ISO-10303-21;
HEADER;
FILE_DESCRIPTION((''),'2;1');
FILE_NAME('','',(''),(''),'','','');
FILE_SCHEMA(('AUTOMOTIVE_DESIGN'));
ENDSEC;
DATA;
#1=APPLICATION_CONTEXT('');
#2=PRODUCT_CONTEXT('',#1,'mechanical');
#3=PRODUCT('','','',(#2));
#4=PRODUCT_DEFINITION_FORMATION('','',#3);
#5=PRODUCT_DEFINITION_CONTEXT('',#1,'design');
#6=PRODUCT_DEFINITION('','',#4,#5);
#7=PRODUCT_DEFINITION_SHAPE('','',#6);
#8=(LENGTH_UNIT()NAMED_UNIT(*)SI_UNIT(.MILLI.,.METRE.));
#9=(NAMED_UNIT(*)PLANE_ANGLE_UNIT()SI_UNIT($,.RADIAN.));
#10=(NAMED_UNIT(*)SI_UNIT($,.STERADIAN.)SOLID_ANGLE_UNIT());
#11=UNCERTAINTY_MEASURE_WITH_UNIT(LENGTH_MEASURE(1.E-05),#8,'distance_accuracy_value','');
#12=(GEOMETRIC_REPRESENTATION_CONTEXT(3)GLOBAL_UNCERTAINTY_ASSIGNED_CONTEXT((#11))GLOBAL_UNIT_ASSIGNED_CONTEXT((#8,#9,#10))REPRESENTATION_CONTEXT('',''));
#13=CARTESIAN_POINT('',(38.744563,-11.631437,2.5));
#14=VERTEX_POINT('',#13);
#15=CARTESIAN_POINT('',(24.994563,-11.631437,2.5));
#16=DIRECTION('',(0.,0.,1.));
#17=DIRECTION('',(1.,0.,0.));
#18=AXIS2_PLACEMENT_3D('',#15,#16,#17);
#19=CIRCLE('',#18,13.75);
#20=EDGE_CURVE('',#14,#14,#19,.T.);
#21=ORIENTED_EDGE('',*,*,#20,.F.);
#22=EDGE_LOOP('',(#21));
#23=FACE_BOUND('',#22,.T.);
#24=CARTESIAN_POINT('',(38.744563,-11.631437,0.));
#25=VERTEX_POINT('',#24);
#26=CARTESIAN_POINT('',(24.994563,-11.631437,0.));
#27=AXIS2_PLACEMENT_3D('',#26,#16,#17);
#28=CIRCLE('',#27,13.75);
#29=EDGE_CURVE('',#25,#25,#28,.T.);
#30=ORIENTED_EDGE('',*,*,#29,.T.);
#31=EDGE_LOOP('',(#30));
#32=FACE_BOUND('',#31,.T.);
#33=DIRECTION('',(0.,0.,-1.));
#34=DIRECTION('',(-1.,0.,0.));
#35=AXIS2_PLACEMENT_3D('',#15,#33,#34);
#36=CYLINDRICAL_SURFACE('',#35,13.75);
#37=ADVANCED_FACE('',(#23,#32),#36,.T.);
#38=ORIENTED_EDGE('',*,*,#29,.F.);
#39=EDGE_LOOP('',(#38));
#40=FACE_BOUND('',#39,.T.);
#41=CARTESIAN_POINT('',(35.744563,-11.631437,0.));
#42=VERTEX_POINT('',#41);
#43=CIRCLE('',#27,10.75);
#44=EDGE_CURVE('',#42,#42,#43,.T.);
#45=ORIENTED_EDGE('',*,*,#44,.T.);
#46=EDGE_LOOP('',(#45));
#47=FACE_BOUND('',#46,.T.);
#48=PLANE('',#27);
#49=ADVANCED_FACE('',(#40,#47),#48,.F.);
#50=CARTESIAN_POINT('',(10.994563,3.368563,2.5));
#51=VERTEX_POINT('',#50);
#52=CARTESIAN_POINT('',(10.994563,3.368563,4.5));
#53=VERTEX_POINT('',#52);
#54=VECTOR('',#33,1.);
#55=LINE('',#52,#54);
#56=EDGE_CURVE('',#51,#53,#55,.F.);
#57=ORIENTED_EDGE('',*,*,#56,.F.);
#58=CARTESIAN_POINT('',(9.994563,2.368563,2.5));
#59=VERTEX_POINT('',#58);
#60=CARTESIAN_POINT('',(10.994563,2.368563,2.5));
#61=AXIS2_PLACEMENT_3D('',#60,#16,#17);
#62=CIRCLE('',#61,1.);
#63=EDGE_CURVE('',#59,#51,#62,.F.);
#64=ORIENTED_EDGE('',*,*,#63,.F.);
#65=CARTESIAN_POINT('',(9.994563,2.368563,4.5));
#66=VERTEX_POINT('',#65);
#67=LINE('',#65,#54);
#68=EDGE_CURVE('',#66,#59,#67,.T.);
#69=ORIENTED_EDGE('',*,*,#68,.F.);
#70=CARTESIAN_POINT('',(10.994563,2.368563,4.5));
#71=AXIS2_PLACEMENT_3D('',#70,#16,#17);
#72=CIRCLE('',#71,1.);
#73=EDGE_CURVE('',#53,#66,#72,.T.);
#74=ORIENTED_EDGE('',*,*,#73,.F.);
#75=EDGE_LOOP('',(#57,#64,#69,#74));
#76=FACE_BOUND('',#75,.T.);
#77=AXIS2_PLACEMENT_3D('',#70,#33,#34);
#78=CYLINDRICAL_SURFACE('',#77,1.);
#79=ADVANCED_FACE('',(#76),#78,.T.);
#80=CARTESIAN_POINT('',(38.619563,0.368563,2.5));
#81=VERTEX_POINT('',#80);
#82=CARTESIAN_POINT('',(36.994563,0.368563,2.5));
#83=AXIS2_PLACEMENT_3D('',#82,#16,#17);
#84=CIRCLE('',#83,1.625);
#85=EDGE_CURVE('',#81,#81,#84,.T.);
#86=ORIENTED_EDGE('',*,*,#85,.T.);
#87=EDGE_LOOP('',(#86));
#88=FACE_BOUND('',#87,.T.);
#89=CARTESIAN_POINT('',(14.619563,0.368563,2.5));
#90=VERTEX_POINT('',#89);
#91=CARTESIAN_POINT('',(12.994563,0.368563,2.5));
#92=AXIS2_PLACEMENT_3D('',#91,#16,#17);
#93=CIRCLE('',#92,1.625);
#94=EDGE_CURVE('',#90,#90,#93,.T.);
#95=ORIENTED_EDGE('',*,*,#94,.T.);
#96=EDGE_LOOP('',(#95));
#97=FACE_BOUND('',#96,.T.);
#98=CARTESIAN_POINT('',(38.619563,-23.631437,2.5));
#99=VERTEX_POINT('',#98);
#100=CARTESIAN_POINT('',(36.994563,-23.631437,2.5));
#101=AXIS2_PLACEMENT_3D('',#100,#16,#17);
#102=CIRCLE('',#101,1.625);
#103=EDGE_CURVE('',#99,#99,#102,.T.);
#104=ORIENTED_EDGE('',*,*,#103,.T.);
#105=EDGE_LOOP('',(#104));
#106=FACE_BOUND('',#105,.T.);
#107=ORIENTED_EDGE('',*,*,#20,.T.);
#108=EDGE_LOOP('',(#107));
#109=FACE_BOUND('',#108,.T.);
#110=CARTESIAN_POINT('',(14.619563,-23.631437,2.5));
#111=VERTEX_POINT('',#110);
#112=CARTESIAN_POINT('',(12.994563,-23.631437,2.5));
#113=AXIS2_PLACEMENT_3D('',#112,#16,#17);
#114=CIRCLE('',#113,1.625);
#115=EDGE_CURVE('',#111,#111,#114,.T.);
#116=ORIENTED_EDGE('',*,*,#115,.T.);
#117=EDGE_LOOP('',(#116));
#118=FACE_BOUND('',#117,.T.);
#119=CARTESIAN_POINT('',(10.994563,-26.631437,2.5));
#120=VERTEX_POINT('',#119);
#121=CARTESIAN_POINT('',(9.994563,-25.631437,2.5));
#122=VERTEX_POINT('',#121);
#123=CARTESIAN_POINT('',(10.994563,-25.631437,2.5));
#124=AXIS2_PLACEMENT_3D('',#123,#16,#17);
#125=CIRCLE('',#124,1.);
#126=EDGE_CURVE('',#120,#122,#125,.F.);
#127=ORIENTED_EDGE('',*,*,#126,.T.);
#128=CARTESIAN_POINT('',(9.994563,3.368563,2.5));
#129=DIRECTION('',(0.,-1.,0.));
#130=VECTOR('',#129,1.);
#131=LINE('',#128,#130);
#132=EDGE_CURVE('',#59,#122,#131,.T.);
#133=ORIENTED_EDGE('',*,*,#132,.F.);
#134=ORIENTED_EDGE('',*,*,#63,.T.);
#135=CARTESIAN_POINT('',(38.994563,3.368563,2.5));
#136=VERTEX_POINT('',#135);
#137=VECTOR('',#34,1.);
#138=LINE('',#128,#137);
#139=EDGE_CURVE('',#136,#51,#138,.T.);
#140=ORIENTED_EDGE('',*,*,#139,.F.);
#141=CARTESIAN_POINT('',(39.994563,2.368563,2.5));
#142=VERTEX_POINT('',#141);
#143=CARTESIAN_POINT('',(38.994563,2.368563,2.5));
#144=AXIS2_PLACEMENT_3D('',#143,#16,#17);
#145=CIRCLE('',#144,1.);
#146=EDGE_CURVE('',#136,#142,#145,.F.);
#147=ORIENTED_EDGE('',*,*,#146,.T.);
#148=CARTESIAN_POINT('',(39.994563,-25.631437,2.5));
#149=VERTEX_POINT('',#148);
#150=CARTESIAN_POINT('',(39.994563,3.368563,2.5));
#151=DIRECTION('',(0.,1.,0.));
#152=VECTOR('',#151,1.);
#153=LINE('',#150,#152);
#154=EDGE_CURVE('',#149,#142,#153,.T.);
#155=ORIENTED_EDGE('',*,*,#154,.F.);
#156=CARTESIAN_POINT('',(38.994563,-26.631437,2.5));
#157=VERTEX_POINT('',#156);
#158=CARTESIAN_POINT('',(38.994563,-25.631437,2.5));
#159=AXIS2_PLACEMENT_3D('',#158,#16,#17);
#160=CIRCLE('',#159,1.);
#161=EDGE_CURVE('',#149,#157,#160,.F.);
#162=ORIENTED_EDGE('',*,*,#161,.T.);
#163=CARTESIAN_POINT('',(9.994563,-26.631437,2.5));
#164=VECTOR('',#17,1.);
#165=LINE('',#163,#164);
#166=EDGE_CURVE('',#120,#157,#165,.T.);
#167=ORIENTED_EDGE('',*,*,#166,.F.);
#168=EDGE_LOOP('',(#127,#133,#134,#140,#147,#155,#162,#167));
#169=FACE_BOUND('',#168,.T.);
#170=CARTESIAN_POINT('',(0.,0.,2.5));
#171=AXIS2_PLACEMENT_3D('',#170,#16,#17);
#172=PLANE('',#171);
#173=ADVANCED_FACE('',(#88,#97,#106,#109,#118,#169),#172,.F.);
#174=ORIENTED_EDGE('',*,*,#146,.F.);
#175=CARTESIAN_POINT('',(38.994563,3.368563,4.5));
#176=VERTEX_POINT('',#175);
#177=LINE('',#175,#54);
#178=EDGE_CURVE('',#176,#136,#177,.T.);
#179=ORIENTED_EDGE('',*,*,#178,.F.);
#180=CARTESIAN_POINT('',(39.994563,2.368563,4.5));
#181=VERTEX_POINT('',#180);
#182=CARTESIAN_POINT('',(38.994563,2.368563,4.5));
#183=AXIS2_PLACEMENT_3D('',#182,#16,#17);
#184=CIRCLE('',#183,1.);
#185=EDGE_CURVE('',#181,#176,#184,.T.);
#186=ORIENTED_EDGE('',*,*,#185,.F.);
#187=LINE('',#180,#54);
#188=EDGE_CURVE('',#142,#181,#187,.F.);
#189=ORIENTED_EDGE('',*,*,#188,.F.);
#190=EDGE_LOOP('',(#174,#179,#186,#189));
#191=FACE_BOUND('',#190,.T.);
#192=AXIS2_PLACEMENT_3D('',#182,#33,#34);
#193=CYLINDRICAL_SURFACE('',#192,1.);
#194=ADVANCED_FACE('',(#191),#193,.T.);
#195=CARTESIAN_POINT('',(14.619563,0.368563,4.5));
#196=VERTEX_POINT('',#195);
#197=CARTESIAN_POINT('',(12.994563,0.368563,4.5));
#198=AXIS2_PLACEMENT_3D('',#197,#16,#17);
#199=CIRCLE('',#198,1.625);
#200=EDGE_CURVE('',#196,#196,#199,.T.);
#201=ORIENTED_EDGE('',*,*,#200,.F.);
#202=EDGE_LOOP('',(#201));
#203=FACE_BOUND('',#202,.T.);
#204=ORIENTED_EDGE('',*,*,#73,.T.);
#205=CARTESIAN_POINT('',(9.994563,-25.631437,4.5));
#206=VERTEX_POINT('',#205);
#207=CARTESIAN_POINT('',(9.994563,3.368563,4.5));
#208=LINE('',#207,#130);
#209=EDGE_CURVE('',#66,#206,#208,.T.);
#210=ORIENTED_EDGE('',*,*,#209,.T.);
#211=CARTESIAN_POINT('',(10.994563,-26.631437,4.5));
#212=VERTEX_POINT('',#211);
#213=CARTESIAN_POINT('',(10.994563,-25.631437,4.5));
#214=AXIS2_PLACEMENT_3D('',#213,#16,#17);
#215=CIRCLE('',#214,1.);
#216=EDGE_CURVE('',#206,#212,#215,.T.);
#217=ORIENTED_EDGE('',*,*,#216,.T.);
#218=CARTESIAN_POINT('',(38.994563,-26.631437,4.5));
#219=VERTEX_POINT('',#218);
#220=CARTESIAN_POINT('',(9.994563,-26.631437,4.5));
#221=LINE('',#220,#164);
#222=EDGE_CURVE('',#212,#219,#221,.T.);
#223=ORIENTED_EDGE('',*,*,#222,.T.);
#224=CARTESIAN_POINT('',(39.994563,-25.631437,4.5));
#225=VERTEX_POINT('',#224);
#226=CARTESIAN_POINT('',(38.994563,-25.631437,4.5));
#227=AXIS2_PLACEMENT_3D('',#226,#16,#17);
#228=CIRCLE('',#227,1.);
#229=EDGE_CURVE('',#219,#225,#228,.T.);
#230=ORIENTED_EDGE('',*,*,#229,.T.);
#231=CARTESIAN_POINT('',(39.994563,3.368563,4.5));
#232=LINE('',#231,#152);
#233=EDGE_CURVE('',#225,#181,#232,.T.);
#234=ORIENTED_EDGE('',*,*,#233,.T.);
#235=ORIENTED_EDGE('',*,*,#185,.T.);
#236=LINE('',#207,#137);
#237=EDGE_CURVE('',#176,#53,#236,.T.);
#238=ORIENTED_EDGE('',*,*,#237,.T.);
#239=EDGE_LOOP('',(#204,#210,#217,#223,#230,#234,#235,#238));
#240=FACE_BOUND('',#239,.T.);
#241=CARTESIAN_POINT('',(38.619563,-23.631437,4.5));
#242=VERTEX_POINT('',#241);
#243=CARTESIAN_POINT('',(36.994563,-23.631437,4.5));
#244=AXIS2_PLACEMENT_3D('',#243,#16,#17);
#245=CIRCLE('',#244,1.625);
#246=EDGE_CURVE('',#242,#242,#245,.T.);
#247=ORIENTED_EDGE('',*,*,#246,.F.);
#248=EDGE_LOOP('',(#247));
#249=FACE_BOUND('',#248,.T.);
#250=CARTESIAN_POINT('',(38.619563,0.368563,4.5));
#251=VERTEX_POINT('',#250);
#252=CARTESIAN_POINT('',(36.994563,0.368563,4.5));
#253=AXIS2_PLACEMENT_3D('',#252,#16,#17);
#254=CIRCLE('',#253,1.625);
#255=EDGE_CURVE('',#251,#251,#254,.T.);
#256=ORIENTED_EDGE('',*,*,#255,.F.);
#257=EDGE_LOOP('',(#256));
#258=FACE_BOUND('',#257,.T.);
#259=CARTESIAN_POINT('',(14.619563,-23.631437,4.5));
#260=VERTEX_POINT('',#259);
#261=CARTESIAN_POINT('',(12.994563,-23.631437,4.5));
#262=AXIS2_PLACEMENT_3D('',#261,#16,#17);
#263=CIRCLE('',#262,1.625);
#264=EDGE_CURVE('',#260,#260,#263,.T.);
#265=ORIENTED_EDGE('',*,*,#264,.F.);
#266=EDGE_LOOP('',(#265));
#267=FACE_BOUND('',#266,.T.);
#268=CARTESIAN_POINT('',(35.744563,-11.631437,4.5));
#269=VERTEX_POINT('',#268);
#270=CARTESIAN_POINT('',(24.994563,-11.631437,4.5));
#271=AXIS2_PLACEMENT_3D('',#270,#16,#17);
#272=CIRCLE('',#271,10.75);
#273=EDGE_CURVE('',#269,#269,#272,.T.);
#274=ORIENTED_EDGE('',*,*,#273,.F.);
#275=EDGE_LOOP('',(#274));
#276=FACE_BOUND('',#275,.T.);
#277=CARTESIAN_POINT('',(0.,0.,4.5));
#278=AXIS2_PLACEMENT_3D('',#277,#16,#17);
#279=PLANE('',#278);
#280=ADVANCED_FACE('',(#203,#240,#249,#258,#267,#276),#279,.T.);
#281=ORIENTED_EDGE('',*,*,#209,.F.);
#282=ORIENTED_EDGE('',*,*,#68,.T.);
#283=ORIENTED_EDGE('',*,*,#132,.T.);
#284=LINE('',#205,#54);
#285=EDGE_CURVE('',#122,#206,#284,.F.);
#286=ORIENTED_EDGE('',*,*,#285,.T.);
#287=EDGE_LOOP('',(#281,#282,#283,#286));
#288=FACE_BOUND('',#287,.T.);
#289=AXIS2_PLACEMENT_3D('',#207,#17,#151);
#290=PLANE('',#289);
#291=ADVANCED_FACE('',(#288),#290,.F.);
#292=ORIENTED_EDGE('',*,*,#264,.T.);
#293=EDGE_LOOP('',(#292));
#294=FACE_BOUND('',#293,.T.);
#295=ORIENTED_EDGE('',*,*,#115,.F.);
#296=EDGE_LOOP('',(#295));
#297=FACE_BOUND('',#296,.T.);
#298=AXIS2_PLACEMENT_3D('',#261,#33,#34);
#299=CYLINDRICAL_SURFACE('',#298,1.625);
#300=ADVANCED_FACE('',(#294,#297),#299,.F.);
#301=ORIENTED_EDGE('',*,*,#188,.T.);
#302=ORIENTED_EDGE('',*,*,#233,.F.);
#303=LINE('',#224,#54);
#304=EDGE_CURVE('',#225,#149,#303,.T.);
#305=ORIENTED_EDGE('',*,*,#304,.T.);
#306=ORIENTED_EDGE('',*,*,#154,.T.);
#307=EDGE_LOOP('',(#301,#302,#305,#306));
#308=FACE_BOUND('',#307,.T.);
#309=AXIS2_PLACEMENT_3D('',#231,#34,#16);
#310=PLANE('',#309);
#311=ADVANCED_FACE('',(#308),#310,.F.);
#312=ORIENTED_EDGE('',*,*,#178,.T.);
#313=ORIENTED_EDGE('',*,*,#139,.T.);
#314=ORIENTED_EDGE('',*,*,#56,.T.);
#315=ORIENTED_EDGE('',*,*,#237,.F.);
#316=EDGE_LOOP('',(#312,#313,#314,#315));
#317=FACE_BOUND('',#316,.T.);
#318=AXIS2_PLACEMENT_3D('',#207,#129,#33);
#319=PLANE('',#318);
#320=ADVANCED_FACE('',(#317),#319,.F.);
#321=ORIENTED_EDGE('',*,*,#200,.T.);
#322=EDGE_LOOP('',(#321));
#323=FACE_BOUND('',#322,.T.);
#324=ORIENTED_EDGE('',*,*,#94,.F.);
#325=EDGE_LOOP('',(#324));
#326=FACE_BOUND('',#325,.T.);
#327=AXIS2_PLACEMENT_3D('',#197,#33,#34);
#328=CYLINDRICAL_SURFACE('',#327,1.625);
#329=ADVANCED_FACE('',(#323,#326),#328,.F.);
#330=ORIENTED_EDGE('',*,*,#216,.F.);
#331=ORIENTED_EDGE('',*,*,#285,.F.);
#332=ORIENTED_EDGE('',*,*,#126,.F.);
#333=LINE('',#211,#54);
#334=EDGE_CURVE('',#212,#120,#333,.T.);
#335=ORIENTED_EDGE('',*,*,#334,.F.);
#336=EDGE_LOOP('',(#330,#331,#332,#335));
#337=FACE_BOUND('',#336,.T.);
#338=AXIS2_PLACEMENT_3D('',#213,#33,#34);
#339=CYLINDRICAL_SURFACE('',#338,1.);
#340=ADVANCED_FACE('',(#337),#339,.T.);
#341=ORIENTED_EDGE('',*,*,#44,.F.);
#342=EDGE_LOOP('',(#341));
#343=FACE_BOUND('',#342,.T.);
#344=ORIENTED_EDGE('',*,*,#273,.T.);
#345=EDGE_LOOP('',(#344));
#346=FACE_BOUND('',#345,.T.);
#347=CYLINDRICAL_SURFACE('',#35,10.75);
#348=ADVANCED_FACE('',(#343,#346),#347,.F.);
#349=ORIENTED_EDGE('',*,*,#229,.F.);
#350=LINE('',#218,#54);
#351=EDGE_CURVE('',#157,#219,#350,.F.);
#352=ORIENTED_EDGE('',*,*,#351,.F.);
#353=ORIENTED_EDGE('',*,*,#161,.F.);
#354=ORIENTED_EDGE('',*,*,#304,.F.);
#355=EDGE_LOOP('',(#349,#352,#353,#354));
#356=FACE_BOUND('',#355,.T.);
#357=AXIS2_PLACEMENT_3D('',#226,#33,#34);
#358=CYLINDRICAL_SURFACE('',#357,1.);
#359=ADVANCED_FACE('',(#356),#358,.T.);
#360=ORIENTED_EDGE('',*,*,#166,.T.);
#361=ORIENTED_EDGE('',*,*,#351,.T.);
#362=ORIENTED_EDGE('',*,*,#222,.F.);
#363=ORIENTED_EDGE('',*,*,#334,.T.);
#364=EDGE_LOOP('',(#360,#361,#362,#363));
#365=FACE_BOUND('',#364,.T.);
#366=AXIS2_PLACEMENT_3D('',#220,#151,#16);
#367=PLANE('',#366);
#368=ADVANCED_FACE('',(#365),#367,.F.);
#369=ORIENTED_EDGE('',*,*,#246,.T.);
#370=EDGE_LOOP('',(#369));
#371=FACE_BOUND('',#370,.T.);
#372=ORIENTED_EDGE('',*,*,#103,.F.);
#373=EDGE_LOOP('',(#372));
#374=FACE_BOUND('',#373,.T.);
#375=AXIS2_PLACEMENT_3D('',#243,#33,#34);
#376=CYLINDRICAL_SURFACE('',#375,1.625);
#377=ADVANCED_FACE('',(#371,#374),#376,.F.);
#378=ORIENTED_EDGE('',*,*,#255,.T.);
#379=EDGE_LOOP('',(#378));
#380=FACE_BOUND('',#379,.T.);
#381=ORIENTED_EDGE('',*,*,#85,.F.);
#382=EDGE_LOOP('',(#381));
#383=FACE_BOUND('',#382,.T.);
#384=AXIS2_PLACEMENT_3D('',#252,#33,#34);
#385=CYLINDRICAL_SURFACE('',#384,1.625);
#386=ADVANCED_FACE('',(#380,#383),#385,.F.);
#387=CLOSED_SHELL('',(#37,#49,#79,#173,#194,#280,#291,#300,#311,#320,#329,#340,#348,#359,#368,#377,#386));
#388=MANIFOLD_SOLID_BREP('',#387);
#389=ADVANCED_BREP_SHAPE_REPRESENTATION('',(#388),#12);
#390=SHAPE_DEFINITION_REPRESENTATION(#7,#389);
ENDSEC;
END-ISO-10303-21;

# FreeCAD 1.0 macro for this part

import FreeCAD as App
import Part
import Sketcher

V = App.Vector


def edges_at(feature, points):
    """Names of the edges that pass closest to the given points."""
    edges = feature.Shape.Edges
    near = lambda p: min(range(len(edges)), key=lambda i: edges[i].distToShape(Part.Vertex(*p))[0])
    return sorted({f"Edge{near(p) + 1}" for p in points})

doc = App.newDocument("Part")
body = doc.addObject("PartDesign::Body", "Body")

# Sketch on XY plane
sketch1 = body.newObject("Sketcher::SketchObject", "Sketch")
sketch1.AttachmentSupport = (doc.getObject("XY_Plane"), [""])
sketch1.MapMode = "FlatFace"
sketch1.addGeometry([
    Part.Circle(V(25, -12, 0), V(0, 0, 1), 14),
    Part.Circle(V(25, -12, 0), V(0, 0, 1), 11),
], False)
sketch1.addConstraint([
    Sketcher.Constraint("Coincident", 1, 3, 0, 3),
    Sketcher.Constraint("Diameter", 0, 27.5),
    Sketcher.Constraint("Diameter", 1, 21.5),
    Sketcher.Constraint("DistanceX", -1, 1, 0, 3, 24.994563),
    Sketcher.Constraint("DistanceY", 0, 3, -1, 1, 11.631437),
])
pad1 = body.newObject("PartDesign::Pad", "Pad")
pad1.Profile = sketch1
pad1.Length = 2.5

# Sketch on XY plane
sketch2 = body.newObject("Sketcher::SketchObject", "Sketch001")
sketch2.AttachmentSupport = (doc.getObject("XY_Plane"), [""])
sketch2.MapMode = "FlatFace"
sketch2.AttachmentOffset = App.Placement(V(0, 0, 2.5), App.Rotation())
sketch2.addGeometry([
    Part.LineSegment(V(10, 3.4, 0), V(10, -26.6, 0)),  # 0
    Part.LineSegment(V(10, -26.6, 0), V(40, -26.6, 0)),  # 1
    Part.LineSegment(V(40, -26.6, 0), V(40, 3.4, 0)),  # 2
    Part.LineSegment(V(40, 3.4, 0), V(10, 3.4, 0)),  # 3
    Part.Circle(V(13, -23.6, 0), V(0, 0, 1), 1.6),  # 4
    Part.Circle(V(37, -23.6, 0), V(0, 0, 1), 1.6),  # 5
    Part.Circle(V(13, 0.4, 0), V(0, 0, 1), 1.6),  # 6
    Part.Circle(V(37, 0.4, 0), V(0, 0, 1), 1.6),  # 7
], False)
sketch2.addConstraint([
    Sketcher.Constraint("Coincident", 0, 2, 1, 1),
    Sketcher.Constraint("Coincident", 1, 2, 2, 1),
    Sketcher.Constraint("Coincident", 2, 2, 3, 1),
    Sketcher.Constraint("Coincident", 3, 2, 0, 1),
    Sketcher.Constraint("Vertical", 0),
    Sketcher.Constraint("Horizontal", 1),
    Sketcher.Constraint("Vertical", 2),
    Sketcher.Constraint("Horizontal", 3),
    Sketcher.Constraint("Equal", 4, 5),
    Sketcher.Constraint("Equal", 5, 6),
    Sketcher.Constraint("Equal", 6, 7),
    Sketcher.Constraint("Horizontal", 4, 3, 5, 3),
    Sketcher.Constraint("Horizontal", 6, 3, 7, 3),
    Sketcher.Constraint("Vertical", 4, 3, 6, 3),
    Sketcher.Constraint("Vertical", 5, 3, 7, 3),
    Sketcher.Constraint("Equal", 3, 0),
    Sketcher.Constraint("Diameter", 4, 3.25),
    Sketcher.Constraint("DistanceX", 1, 1, 1, 2, 30.0),
    Sketcher.Constraint("DistanceX", 4, 3, 5, 3, 24.0),
    Sketcher.Constraint("DistanceY", 4, 3, 6, 3, 24.0),
    Sketcher.Constraint("DistanceX", 0, 2, 4, 3, 3.0),
    Sketcher.Constraint("DistanceY", 0, 2, 4, 3, 3.0),
    Sketcher.Constraint("DistanceX", -1, 1, 4, 3, 12.994563),
    Sketcher.Constraint("DistanceY", 4, 3, -1, 1, 23.631437),
])
pad2 = body.newObject("PartDesign::Pad", "Pad001")
pad2.Profile = sketch2
pad2.Length = 2

# Sketch on XY plane
sketch3 = body.newObject("Sketcher::SketchObject", "Sketch002")
sketch3.AttachmentSupport = (doc.getObject("XY_Plane"), [""])
sketch3.MapMode = "FlatFace"
sketch3.addGeometry(Part.Circle(V(25, -12, 0), V(0, 0, 1), 11), False)
sketch3.addConstraint([
    Sketcher.Constraint("Diameter", 0, 21.5),
    Sketcher.Constraint("DistanceX", -1, 1, 0, 3, 24.994563),
    Sketcher.Constraint("DistanceY", 0, 3, -1, 1, 11.631437),
])
pocket1 = body.newObject("PartDesign::Pocket", "Pocket")
pocket1.Profile = sketch3
pocket1.Length = 23
pocket1.Reversed = True
doc.recompute()

fillet = body.newObject("PartDesign::Fillet", "Fillet")
fillet.Base = (pocket1, edges_at(pocket1, [
    (9.995, 3.369, 3.5),
    (9.995, -26.631, 3.5),
    (39.995, -26.631, 3.5),
    (39.995, 3.369, 3.5),
]))
fillet.Radius = 1

doc.recompute()
